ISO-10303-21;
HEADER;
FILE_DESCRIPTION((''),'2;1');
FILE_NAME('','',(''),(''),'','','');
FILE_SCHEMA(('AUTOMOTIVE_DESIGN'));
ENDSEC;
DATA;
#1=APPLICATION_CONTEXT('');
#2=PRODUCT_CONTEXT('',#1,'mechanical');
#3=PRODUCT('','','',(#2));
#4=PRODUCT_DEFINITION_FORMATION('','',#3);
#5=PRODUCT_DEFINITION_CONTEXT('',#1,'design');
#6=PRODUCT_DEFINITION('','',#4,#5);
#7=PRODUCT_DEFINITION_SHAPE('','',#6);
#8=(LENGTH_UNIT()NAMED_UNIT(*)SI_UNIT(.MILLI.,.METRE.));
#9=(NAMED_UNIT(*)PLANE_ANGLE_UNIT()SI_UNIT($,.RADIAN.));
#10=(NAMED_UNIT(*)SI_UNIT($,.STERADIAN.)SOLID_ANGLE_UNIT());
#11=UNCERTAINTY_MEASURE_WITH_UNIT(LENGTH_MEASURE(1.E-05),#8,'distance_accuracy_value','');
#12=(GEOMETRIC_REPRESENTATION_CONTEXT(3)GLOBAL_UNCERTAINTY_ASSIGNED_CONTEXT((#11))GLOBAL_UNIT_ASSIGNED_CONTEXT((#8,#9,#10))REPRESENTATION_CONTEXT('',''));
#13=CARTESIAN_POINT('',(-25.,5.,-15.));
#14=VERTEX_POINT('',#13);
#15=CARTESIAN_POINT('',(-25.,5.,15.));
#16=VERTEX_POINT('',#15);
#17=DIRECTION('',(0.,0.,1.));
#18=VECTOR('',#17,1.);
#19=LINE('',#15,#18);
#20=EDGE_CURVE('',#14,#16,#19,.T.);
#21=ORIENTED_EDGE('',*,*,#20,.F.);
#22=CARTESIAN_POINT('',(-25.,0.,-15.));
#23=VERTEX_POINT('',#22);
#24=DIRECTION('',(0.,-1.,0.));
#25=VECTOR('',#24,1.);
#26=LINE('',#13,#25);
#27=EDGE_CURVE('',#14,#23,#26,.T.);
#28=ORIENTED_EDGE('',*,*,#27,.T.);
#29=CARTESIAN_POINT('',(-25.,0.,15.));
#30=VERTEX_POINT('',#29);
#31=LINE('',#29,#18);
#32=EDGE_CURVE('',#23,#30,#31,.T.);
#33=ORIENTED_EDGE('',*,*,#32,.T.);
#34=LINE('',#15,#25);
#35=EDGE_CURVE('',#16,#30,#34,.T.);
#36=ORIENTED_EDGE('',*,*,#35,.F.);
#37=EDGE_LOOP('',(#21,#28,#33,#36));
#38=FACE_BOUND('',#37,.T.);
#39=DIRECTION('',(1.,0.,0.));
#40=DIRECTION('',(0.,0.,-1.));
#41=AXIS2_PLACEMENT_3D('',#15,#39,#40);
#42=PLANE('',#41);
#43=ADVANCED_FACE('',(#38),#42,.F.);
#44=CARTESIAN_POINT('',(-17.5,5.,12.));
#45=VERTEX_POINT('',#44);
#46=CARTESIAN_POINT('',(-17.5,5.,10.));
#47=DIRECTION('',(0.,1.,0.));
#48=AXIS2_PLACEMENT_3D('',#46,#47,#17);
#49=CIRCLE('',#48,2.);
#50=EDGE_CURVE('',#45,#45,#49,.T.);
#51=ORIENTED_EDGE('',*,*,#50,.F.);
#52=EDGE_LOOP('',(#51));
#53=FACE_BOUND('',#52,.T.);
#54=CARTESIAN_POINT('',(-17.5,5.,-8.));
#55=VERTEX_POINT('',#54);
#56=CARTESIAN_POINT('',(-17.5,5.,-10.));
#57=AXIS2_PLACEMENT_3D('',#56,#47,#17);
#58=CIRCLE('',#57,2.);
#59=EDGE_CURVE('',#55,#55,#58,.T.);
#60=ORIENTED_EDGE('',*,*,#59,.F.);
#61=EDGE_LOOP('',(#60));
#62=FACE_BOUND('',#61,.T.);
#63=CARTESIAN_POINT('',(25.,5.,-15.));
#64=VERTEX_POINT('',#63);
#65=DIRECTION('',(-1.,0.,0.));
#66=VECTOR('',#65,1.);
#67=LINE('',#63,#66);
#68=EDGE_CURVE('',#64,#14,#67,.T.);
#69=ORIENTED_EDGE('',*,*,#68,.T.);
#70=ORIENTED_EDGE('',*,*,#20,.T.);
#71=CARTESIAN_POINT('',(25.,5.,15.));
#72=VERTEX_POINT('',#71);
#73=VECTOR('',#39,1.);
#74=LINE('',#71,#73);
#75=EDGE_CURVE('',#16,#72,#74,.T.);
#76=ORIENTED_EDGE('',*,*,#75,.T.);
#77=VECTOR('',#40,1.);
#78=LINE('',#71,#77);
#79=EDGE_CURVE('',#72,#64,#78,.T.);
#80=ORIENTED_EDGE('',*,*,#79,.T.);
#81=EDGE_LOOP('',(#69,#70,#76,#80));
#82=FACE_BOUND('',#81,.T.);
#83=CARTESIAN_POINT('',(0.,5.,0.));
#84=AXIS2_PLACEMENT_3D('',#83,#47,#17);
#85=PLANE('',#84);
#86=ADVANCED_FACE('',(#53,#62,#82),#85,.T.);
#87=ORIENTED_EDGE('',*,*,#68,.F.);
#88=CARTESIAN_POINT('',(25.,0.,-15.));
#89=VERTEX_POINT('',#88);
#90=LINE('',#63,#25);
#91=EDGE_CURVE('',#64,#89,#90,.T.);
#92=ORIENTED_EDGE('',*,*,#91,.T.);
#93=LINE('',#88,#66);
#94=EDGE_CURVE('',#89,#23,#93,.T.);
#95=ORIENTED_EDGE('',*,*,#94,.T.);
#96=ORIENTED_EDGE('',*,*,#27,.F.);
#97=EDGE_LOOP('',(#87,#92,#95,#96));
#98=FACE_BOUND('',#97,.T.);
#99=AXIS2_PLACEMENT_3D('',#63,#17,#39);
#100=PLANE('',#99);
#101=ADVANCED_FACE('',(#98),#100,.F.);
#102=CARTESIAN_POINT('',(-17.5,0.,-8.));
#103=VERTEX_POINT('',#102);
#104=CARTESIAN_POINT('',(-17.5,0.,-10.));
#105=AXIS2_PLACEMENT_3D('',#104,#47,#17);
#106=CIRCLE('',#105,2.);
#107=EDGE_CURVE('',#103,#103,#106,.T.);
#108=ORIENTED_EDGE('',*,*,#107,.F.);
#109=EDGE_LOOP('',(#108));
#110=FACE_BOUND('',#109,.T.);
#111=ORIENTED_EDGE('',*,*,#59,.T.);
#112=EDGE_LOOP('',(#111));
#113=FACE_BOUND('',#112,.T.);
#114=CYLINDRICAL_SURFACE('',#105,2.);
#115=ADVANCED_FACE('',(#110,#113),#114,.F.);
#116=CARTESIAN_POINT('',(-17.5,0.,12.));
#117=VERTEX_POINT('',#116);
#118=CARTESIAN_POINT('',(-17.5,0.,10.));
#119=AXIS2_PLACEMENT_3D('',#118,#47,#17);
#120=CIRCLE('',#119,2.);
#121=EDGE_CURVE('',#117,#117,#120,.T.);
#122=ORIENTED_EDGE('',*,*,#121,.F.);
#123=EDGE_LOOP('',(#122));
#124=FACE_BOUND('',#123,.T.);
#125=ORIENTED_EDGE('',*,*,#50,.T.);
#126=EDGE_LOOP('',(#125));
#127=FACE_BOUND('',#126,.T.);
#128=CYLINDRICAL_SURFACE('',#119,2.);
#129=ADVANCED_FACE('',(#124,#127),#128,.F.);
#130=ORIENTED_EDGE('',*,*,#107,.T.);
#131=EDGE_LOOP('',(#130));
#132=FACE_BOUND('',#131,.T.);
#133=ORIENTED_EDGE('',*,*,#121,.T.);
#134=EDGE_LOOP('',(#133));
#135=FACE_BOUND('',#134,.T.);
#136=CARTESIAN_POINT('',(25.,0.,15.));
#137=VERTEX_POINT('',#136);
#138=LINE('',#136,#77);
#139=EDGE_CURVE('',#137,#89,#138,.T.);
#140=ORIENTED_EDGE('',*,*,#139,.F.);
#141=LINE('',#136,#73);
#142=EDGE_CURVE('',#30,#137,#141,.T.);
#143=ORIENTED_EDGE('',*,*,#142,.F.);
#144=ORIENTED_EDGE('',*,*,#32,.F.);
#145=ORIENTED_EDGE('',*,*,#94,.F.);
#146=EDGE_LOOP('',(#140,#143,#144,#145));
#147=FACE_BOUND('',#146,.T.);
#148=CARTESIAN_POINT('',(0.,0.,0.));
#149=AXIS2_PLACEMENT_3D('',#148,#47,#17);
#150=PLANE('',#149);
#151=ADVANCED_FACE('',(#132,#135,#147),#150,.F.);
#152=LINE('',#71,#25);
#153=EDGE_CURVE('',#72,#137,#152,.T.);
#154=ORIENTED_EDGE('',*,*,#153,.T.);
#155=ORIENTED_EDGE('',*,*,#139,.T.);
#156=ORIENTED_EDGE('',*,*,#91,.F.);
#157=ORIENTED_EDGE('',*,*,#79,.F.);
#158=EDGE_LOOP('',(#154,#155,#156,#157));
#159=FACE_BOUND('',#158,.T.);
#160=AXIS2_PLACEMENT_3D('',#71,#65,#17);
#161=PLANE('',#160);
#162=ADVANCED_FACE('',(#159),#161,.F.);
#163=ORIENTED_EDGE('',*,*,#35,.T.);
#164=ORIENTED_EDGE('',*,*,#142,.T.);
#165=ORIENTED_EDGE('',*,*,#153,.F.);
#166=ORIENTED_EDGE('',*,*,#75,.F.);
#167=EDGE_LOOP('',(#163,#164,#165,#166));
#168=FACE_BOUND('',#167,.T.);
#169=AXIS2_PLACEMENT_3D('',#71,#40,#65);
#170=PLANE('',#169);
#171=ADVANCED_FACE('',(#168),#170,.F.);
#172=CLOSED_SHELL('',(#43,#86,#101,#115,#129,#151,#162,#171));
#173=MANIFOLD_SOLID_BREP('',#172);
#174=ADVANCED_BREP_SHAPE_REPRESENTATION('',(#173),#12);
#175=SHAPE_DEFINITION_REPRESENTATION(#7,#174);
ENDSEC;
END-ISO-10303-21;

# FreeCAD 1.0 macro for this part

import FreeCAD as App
import Part
import Sketcher
Q = App.Units.Quantity

doc = App.newDocument("Part")
body = doc.addObject("PartDesign::Body", "Body")

sketch1 = body.newObject("Sketcher::SketchObject", "Sketch")
sketch1.AttachmentSupport = (doc.getObject("XZ_Plane"), [""])
sketch1.MapMode = "FlatFace"
sketch1.addGeometry([
    Part.LineSegment(App.Vector(-25, -15, 0), App.Vector(-25, 15, 0)),
    Part.LineSegment(App.Vector(-25, 15, 0), App.Vector(25, 15, 0)),
    Part.LineSegment(App.Vector(25, 15, 0), App.Vector(25, -15, 0)),
    Part.LineSegment(App.Vector(25, -15, 0), App.Vector(-25, -15, 0)),
], False)
sketch1.addConstraint([
    Sketcher.Constraint("Coincident", 0, 2, 1, 1),
    Sketcher.Constraint("Coincident", 1, 2, 2, 1),
    Sketcher.Constraint("Coincident", 2, 2, 3, 1),
    Sketcher.Constraint("Coincident", 3, 2, 0, 1),
    Sketcher.Constraint("Vertical", 0),
    Sketcher.Constraint("Horizontal", 1),
    Sketcher.Constraint("Vertical", 2),
    Sketcher.Constraint("Horizontal", 3),
    Sketcher.Constraint("Symmetric", 0, 2, 2, 2, -1, 1),
    Sketcher.Constraint("DistanceX", 1, 1, 1, 2, Q("50 mm")),
    Sketcher.Constraint("DistanceY", 0, 1, 0, 2, Q("30 mm")),
])
pad1 = body.newObject("PartDesign::Pad", "Pad")
pad1.Profile = sketch1
pad1.Length = 5
pad1.Reversed = True

sketch2 = body.newObject("Sketcher::SketchObject", "Sketch001")
sketch2.AttachmentSupport = (doc.getObject("XZ_Plane"), [""])
sketch2.MapMode = "FlatFace"
sketch2.AttachmentOffset = App.Placement(App.Vector(0, 0, -5), App.Rotation())
sketch2.addGeometry([
    Part.Circle(App.Vector(-17.5, -10, 0), App.Vector(0, 0, 1), 2),
    Part.Circle(App.Vector(-17.5, 10, 0), App.Vector(0, 0, 1), 2),
], False)
sketch2.addConstraint([
    Sketcher.Constraint("Equal", 0, 1),
    Sketcher.Constraint("Symmetric", 0, 3, 1, 3, -1),
    Sketcher.Constraint("Diameter", 0, Q("4 mm")),
    Sketcher.Constraint("DistanceY", 0, 3, -1, 1, Q("10 mm")),
    Sketcher.Constraint("DistanceX", 0, 3, -1, 1, Q("17.5 mm")),
])
pocket1 = body.newObject("PartDesign::Pocket", "Pocket")
pocket1.Profile = sketch2
pocket1.Length = 5
pocket1.Reversed = True

doc.recompute()
